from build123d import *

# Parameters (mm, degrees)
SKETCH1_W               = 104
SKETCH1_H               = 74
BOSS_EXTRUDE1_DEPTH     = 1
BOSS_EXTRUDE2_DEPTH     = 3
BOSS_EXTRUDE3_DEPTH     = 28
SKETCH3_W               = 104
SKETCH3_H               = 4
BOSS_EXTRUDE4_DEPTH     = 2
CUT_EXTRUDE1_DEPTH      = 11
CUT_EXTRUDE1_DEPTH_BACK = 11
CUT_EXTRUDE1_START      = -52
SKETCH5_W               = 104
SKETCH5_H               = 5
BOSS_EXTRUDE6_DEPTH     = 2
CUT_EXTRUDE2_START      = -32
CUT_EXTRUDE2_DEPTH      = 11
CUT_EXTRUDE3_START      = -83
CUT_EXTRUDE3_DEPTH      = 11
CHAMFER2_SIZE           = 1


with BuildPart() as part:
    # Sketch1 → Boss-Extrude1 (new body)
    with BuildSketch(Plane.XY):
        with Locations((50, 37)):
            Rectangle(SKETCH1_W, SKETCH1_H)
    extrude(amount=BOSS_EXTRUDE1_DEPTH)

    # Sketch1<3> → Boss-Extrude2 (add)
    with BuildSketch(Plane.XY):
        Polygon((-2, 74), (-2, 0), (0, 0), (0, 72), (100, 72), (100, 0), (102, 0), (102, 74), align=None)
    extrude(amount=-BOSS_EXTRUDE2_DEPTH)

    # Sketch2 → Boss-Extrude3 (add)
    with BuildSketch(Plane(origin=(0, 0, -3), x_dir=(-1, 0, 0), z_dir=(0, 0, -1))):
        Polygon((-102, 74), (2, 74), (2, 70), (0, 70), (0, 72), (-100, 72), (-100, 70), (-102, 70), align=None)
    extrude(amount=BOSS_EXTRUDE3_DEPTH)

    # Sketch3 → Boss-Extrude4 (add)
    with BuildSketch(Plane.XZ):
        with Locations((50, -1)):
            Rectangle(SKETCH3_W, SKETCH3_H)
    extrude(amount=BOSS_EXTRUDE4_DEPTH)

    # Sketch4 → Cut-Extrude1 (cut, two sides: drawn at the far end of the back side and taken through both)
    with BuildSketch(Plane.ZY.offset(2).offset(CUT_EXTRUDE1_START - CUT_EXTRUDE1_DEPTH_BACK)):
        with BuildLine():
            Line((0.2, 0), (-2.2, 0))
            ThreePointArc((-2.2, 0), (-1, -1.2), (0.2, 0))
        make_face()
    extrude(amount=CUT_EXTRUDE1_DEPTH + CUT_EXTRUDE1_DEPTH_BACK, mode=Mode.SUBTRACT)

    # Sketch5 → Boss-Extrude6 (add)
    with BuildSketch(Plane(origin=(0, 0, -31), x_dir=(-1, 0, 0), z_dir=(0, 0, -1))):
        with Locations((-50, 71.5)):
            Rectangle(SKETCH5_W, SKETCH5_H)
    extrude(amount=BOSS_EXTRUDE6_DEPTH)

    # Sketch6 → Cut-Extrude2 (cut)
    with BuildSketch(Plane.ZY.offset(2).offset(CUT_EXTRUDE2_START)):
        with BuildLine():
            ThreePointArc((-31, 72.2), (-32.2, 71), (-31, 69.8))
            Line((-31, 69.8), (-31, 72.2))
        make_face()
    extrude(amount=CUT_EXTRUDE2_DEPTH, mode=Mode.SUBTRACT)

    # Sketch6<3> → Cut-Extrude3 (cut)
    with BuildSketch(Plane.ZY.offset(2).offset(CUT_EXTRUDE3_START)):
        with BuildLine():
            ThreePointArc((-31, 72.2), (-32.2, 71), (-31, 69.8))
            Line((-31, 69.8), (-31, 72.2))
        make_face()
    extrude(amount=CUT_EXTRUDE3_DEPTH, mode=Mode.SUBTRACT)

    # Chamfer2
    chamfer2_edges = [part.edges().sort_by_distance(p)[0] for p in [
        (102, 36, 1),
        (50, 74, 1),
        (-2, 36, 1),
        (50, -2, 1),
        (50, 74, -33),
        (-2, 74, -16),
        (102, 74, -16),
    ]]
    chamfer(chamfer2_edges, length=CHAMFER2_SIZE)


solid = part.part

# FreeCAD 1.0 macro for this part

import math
import FreeCAD as App
import Part
import Sketcher
from FreeCAD import Vector


def edges_at(feature, points):
    """Names of the edges that pass closest to the given points."""
    edges = feature.Shape.Edges
    near = lambda p: min(range(len(edges)), key=lambda i: edges[i].distToShape(Part.Vertex(*p))[0])
    return sorted({f"Edge{near(p) + 1}" for p in points})

doc = App.newDocument("Part")
body = doc.addObject("PartDesign::Body", "Body")

sketch1 = doc.addObject("Sketcher::SketchObject", "Sketch")
body.addObject(sketch1)
sketch1.AttachmentSupport = (doc.XY_Plane, [""])
sketch1.MapMode = "FlatFace"
sketch1.addGeometry([
    Part.LineSegment(Vector(-2, 74, 0), Vector(-2, 0, 0)),
    Part.LineSegment(Vector(-2, 0, 0), Vector(102, 0, 0)),
    Part.LineSegment(Vector(102, 0, 0), Vector(102, 74, 0)),
    Part.LineSegment(Vector(102, 74, 0), Vector(-2, 74, 0)),
], False)
sketch1.addConstraint([
    Sketcher.Constraint("Coincident", 0, 2, 1, 1),
    Sketcher.Constraint("Coincident", 1, 2, 2, 1),
    Sketcher.Constraint("Coincident", 2, 2, 3, 1),
    Sketcher.Constraint("Coincident", 3, 2, 0, 1),
    Sketcher.Constraint("Vertical", 0),
    Sketcher.Constraint("Horizontal", 1),
    Sketcher.Constraint("Vertical", 2),
    Sketcher.Constraint("Horizontal", 3),
    Sketcher.Constraint("PointOnObject", 0, 2, -1),
    Sketcher.Constraint("DistanceX", 1, 1, 1, 2, 104.0),
    Sketcher.Constraint("DistanceY", 0, 2, 0, 1, 74.0),
    Sketcher.Constraint("DistanceX", 0, 2, -1, 1, 2.0),
])
pad1 = doc.addObject("PartDesign::Pad", "Pad")
body.addObject(pad1)
pad1.Profile = sketch1
pad1.Length = 1

sketch2 = doc.addObject("Sketcher::SketchObject", "Sketch001")
body.addObject(sketch2)
sketch2.AttachmentSupport = (doc.XY_Plane, [""])
sketch2.MapMode = "FlatFace"
sketch2.addGeometry([
    Part.LineSegment(Vector(-2, 74, 0), Vector(-2, 0, 0)),
    Part.LineSegment(Vector(-2, 0, 0), Vector(0, 0, 0)),
    Part.LineSegment(Vector(0, 0, 0), Vector(0, 72, 0)),
    Part.LineSegment(Vector(0, 72, 0), Vector(100, 72, 0)),
    Part.LineSegment(Vector(100, 72, 0), Vector(100, 0, 0)),
    Part.LineSegment(Vector(100, 0, 0), Vector(102, 0, 0)),
    Part.LineSegment(Vector(102, 0, 0), Vector(102, 74, 0)),
    Part.LineSegment(Vector(102, 74, 0), Vector(-2, 74, 0)),
], False)
sketch2.addConstraint([
    Sketcher.Constraint("Coincident", 0, 2, 1, 1),
    Sketcher.Constraint("Coincident", 1, 2, 2, 1),
    Sketcher.Constraint("Coincident", 2, 2, 3, 1),
    Sketcher.Constraint("Coincident", 3, 2, 4, 1),
    Sketcher.Constraint("Coincident", 4, 2, 5, 1),
    Sketcher.Constraint("Coincident", 5, 2, 6, 1),
    Sketcher.Constraint("Coincident", 6, 2, 7, 1),
    Sketcher.Constraint("Coincident", 7, 2, 0, 1),
    Sketcher.Constraint("Vertical", 0),
    Sketcher.Constraint("Horizontal", 1),
    Sketcher.Constraint("Vertical", 2),
    Sketcher.Constraint("Horizontal", 3),
    Sketcher.Constraint("Vertical", 4),
    Sketcher.Constraint("Horizontal", 5),
    Sketcher.Constraint("Vertical", 6),
    Sketcher.Constraint("Horizontal", 7),
    Sketcher.Constraint("Coincident", 1, 2, -1, 1),
    Sketcher.Constraint("PointOnObject", 4, 2, -1),
    Sketcher.Constraint("Equal", 1, 5),
    Sketcher.Constraint("DistanceX", 1, 1, 1, 2, 2.0),
    Sketcher.Constraint("DistanceX", 3, 1, 3, 2, 100.0),
    Sketcher.Constraint("DistanceY", 0, 2, 0, 1, 74.0),
    Sketcher.Constraint("DistanceY", 2, 1, 2, 2, 72.0),
])
pad2 = doc.addObject("PartDesign::Pad", "Pad001")
body.addObject(pad2)
pad2.Profile = sketch2
pad2.Length = 3
pad2.Reversed = True

sketch3 = doc.addObject("Sketcher::SketchObject", "Sketch002")
body.addObject(sketch3)
sketch3.AttachmentSupport = (doc.XY_Plane, [""])
sketch3.MapMode = "FlatFace"
sketch3.AttachmentOffset = App.Placement(Vector(0, 0, -3), App.Rotation())
sketch3.addGeometry([
    Part.LineSegment(Vector(-2, 74, 0), Vector(102, 74, 0)),
    Part.LineSegment(Vector(102, 74, 0), Vector(102, 70, 0)),
    Part.LineSegment(Vector(102, 70, 0), Vector(100, 70, 0)),
    Part.LineSegment(Vector(100, 70, 0), Vector(100, 72, 0)),
    Part.LineSegment(Vector(100, 72, 0), Vector(0, 72, 0)),
    Part.LineSegment(Vector(0, 72, 0), Vector(0, 70, 0)),
    Part.LineSegment(Vector(0, 70, 0), Vector(-2, 70, 0)),
    Part.LineSegment(Vector(-2, 70, 0), Vector(-2, 74, 0)),
], False)
sketch3.addConstraint([
    Sketcher.Constraint("Coincident", 0, 2, 1, 1),
    Sketcher.Constraint("Coincident", 1, 2, 2, 1),
    Sketcher.Constraint("Coincident", 2, 2, 3, 1),
    Sketcher.Constraint("Coincident", 3, 2, 4, 1),
    Sketcher.Constraint("Coincident", 4, 2, 5, 1),
    Sketcher.Constraint("Coincident", 5, 2, 6, 1),
    Sketcher.Constraint("Coincident", 6, 2, 7, 1),
    Sketcher.Constraint("Coincident", 7, 2, 0, 1),
    Sketcher.Constraint("Horizontal", 0),
    Sketcher.Constraint("Vertical", 1),
    Sketcher.Constraint("Horizontal", 2),
    Sketcher.Constraint("Vertical", 3),
    Sketcher.Constraint("Horizontal", 4),
    Sketcher.Constraint("Vertical", 5),
    Sketcher.Constraint("Horizontal", 6),
    Sketcher.Constraint("Vertical", 7),
    Sketcher.Constraint("PointOnObject", 4, 2, -2),
    Sketcher.Constraint("Horizontal", 2, 2, 5, 2),
    Sketcher.Constraint("Equal", 2, 6),
    Sketcher.Constraint("Equal", 6, 3),
    Sketcher.Constraint("DistanceX", 0, 1, 0, 2, 104.0),
    Sketcher.Constraint("DistanceX", 2, 2, 2, 1, 2.0),
    Sketcher.Constraint("DistanceY", 1, 2, 1, 1, 4.0),
    Sketcher.Constraint("DistanceY", -1, 1, 0, 2, 74.0),
])
pad3 = doc.addObject("PartDesign::Pad", "Pad002")
body.addObject(pad3)
pad3.Profile = sketch3
pad3.Length = 28
pad3.Reversed = True

sketch4 = doc.addObject("Sketcher::SketchObject", "Sketch003")
body.addObject(sketch4)
sketch4.AttachmentSupport = (doc.XZ_Plane, [""])
sketch4.MapMode = "FlatFace"
sketch4.addGeometry([
    Part.LineSegment(Vector(-2, 1, 0), Vector(-2, -3, 0)),
    Part.LineSegment(Vector(-2, -3, 0), Vector(102, -3, 0)),
    Part.LineSegment(Vector(102, -3, 0), Vector(102, 1, 0)),
    Part.LineSegment(Vector(102, 1, 0), Vector(-2, 1, 0)),
], False)
sketch4.addConstraint([
    Sketcher.Constraint("Coincident", 0, 2, 1, 1),
    Sketcher.Constraint("Coincident", 1, 2, 2, 1),
    Sketcher.Constraint("Coincident", 2, 2, 3, 1),
    Sketcher.Constraint("Coincident", 3, 2, 0, 1),
    Sketcher.Constraint("Vertical", 0),
    Sketcher.Constraint("Horizontal", 1),
    Sketcher.Constraint("Vertical", 2),
    Sketcher.Constraint("Horizontal", 3),
    Sketcher.Constraint("DistanceX", 1, 1, 1, 2, 104.0),
    Sketcher.Constraint("DistanceY", 0, 2, 0, 1, 4.0),
    Sketcher.Constraint("DistanceX", 0, 2, -1, 1, 2.0),
    Sketcher.Constraint("DistanceY", 0, 2, -1, 1, 3.0),
])
pad4 = doc.addObject("PartDesign::Pad", "Pad003")
body.addObject(pad4)
pad4.Profile = sketch4
pad4.Length = 2

sketch5 = doc.addObject("Sketcher::SketchObject", "Sketch004")
body.addObject(sketch5)
sketch5.AttachmentSupport = (doc.YZ_Plane, [""])
sketch5.MapMode = "FlatFace"
sketch5.AttachmentOffset = App.Placement(Vector(0, 0, 50), App.Rotation())
sketch5.addGeometry([
    Part.LineSegment(Vector(0, 0.2, 0), Vector(0, -2.2, 0)),
    Part.ArcOfCircle(Part.Circle(Vector(0, -1, 0), Vector(0, 0, 1), 1.2), math.radians(90), math.radians(270)),
], False)
sketch5.addConstraint([
    Sketcher.Constraint("Coincident", 0, 1, 1, 1),
    Sketcher.Constraint("Coincident", 1, 2, 0, 2),
    Sketcher.Constraint("Vertical", 0),
    Sketcher.Constraint("PointOnObject", 1, 3, -2),
    Sketcher.Constraint("PointOnObject", 0, 1, -2),
    Sketcher.Constraint("Radius", 1, 1.2),
    Sketcher.Constraint("DistanceY", 1, 3, -1, 1, 1.0),
])
pocket1 = doc.addObject("PartDesign::Pocket", "Pocket")
body.addObject(pocket1)
pocket1.Profile = sketch5
pocket1.Type = "TwoLengths"
pocket1.Length = 11
pocket1.Length2 = 11

sketch6 = doc.addObject("Sketcher::SketchObject", "Sketch005")
body.addObject(sketch6)
sketch6.AttachmentSupport = (doc.XY_Plane, [""])
sketch6.MapMode = "FlatFace"
sketch6.AttachmentOffset = App.Placement(Vector(0, 0, -31), App.Rotation())
sketch6.addGeometry([
    Part.LineSegment(Vector(102, 74, 0), Vector(102, 69, 0)),
    Part.LineSegment(Vector(102, 69, 0), Vector(-2, 69, 0)),
    Part.LineSegment(Vector(-2, 69, 0), Vector(-2, 74, 0)),
    Part.LineSegment(Vector(-2, 74, 0), Vector(102, 74, 0)),
], False)
sketch6.addConstraint([
    Sketcher.Constraint("Coincident", 0, 2, 1, 1),
    Sketcher.Constraint("Coincident", 1, 2, 2, 1),
    Sketcher.Constraint("Coincident", 2, 2, 3, 1),
    Sketcher.Constraint("Coincident", 3, 2, 0, 1),
    Sketcher.Constraint("Vertical", 0),
    Sketcher.Constraint("Horizontal", 1),
    Sketcher.Constraint("Vertical", 2),
    Sketcher.Constraint("Horizontal", 3),
    Sketcher.Constraint("DistanceX", 1, 2, 1, 1, 104.0),
    Sketcher.Constraint("DistanceY", 0, 2, 0, 1, 5.0),
    Sketcher.Constraint("DistanceX", -1, 1, 0, 2, 102.0),
    Sketcher.Constraint("DistanceY", -1, 1, 0, 2, 69.0),
])
pad5 = doc.addObject("PartDesign::Pad", "Pad004")
body.addObject(pad5)
pad5.Profile = sketch6
pad5.Length = 2
pad5.Reversed = True

sketch7 = doc.addObject("Sketcher::SketchObject", "Sketch006")
body.addObject(sketch7)
sketch7.AttachmentSupport = (doc.YZ_Plane, [""])
sketch7.MapMode = "FlatFace"
sketch7.AttachmentOffset = App.Placement(Vector(0, 0, 30), App.Rotation())
sketch7.addGeometry([
    Part.ArcOfCircle(Part.Circle(Vector(71, -31, 0), Vector(0, 0, 1), 1.2), math.radians(180), math.radians(360)),
    Part.LineSegment(Vector(69.8, -31, 0), Vector(72.2, -31, 0)),
], False)
sketch7.addConstraint([
    Sketcher.Constraint("Coincident", 0, 1, 1, 1),
    Sketcher.Constraint("Coincident", 1, 2, 0, 2),
    Sketcher.Constraint("Horizontal", 1),
    Sketcher.Constraint("Radius", 0, 1.2),
    Sketcher.Constraint("DistanceX", -1, 1, 0, 3, 71.0),
    Sketcher.Constraint("DistanceY", 0, 3, -1, 1, 31.0),
    Sketcher.Constraint("DistanceY", 0, 1, -1, 1, 31.0),
])
pocket2 = doc.addObject("PartDesign::Pocket", "Pocket001")
body.addObject(pocket2)
pocket2.Profile = sketch7
pocket2.Length = 11

sketch8 = doc.addObject("Sketcher::SketchObject", "Sketch007")
body.addObject(sketch8)
sketch8.AttachmentSupport = (doc.YZ_Plane, [""])
sketch8.MapMode = "FlatFace"
sketch8.AttachmentOffset = App.Placement(Vector(0, 0, 81), App.Rotation())
sketch8.addGeometry([
    Part.ArcOfCircle(Part.Circle(Vector(71, -31, 0), Vector(0, 0, 1), 1.2), math.radians(180), math.radians(360)),
    Part.LineSegment(Vector(69.8, -31, 0), Vector(72.2, -31, 0)),
], False)
sketch8.addConstraint([
    Sketcher.Constraint("Coincident", 0, 1, 1, 1),
    Sketcher.Constraint("Coincident", 1, 2, 0, 2),
    Sketcher.Constraint("Horizontal", 1),
    Sketcher.Constraint("Radius", 0, 1.2),
    Sketcher.Constraint("DistanceX", -1, 1, 0, 3, 71.0),
    Sketcher.Constraint("DistanceY", 0, 3, -1, 1, 31.0),
    Sketcher.Constraint("DistanceY", 0, 1, -1, 1, 31.0),
])
pocket3 = doc.addObject("PartDesign::Pocket", "Pocket002")
body.addObject(pocket3)
pocket3.Profile = sketch8
pocket3.Length = 11
doc.recompute()

chamfer = doc.addObject("PartDesign::Chamfer", "Chamfer")
body.addObject(chamfer)
chamfer.Base = (pocket3, edges_at(pocket3, [
    (102, 36, 1),
    (50, 74, 1),
    (-2, 36, 1),
    (50, -2, 1),
    (50, 74, -33),
    (-2, 74, -16),
    (102, 74, -16),
]))
chamfer.Size = 1

doc.recompute()
